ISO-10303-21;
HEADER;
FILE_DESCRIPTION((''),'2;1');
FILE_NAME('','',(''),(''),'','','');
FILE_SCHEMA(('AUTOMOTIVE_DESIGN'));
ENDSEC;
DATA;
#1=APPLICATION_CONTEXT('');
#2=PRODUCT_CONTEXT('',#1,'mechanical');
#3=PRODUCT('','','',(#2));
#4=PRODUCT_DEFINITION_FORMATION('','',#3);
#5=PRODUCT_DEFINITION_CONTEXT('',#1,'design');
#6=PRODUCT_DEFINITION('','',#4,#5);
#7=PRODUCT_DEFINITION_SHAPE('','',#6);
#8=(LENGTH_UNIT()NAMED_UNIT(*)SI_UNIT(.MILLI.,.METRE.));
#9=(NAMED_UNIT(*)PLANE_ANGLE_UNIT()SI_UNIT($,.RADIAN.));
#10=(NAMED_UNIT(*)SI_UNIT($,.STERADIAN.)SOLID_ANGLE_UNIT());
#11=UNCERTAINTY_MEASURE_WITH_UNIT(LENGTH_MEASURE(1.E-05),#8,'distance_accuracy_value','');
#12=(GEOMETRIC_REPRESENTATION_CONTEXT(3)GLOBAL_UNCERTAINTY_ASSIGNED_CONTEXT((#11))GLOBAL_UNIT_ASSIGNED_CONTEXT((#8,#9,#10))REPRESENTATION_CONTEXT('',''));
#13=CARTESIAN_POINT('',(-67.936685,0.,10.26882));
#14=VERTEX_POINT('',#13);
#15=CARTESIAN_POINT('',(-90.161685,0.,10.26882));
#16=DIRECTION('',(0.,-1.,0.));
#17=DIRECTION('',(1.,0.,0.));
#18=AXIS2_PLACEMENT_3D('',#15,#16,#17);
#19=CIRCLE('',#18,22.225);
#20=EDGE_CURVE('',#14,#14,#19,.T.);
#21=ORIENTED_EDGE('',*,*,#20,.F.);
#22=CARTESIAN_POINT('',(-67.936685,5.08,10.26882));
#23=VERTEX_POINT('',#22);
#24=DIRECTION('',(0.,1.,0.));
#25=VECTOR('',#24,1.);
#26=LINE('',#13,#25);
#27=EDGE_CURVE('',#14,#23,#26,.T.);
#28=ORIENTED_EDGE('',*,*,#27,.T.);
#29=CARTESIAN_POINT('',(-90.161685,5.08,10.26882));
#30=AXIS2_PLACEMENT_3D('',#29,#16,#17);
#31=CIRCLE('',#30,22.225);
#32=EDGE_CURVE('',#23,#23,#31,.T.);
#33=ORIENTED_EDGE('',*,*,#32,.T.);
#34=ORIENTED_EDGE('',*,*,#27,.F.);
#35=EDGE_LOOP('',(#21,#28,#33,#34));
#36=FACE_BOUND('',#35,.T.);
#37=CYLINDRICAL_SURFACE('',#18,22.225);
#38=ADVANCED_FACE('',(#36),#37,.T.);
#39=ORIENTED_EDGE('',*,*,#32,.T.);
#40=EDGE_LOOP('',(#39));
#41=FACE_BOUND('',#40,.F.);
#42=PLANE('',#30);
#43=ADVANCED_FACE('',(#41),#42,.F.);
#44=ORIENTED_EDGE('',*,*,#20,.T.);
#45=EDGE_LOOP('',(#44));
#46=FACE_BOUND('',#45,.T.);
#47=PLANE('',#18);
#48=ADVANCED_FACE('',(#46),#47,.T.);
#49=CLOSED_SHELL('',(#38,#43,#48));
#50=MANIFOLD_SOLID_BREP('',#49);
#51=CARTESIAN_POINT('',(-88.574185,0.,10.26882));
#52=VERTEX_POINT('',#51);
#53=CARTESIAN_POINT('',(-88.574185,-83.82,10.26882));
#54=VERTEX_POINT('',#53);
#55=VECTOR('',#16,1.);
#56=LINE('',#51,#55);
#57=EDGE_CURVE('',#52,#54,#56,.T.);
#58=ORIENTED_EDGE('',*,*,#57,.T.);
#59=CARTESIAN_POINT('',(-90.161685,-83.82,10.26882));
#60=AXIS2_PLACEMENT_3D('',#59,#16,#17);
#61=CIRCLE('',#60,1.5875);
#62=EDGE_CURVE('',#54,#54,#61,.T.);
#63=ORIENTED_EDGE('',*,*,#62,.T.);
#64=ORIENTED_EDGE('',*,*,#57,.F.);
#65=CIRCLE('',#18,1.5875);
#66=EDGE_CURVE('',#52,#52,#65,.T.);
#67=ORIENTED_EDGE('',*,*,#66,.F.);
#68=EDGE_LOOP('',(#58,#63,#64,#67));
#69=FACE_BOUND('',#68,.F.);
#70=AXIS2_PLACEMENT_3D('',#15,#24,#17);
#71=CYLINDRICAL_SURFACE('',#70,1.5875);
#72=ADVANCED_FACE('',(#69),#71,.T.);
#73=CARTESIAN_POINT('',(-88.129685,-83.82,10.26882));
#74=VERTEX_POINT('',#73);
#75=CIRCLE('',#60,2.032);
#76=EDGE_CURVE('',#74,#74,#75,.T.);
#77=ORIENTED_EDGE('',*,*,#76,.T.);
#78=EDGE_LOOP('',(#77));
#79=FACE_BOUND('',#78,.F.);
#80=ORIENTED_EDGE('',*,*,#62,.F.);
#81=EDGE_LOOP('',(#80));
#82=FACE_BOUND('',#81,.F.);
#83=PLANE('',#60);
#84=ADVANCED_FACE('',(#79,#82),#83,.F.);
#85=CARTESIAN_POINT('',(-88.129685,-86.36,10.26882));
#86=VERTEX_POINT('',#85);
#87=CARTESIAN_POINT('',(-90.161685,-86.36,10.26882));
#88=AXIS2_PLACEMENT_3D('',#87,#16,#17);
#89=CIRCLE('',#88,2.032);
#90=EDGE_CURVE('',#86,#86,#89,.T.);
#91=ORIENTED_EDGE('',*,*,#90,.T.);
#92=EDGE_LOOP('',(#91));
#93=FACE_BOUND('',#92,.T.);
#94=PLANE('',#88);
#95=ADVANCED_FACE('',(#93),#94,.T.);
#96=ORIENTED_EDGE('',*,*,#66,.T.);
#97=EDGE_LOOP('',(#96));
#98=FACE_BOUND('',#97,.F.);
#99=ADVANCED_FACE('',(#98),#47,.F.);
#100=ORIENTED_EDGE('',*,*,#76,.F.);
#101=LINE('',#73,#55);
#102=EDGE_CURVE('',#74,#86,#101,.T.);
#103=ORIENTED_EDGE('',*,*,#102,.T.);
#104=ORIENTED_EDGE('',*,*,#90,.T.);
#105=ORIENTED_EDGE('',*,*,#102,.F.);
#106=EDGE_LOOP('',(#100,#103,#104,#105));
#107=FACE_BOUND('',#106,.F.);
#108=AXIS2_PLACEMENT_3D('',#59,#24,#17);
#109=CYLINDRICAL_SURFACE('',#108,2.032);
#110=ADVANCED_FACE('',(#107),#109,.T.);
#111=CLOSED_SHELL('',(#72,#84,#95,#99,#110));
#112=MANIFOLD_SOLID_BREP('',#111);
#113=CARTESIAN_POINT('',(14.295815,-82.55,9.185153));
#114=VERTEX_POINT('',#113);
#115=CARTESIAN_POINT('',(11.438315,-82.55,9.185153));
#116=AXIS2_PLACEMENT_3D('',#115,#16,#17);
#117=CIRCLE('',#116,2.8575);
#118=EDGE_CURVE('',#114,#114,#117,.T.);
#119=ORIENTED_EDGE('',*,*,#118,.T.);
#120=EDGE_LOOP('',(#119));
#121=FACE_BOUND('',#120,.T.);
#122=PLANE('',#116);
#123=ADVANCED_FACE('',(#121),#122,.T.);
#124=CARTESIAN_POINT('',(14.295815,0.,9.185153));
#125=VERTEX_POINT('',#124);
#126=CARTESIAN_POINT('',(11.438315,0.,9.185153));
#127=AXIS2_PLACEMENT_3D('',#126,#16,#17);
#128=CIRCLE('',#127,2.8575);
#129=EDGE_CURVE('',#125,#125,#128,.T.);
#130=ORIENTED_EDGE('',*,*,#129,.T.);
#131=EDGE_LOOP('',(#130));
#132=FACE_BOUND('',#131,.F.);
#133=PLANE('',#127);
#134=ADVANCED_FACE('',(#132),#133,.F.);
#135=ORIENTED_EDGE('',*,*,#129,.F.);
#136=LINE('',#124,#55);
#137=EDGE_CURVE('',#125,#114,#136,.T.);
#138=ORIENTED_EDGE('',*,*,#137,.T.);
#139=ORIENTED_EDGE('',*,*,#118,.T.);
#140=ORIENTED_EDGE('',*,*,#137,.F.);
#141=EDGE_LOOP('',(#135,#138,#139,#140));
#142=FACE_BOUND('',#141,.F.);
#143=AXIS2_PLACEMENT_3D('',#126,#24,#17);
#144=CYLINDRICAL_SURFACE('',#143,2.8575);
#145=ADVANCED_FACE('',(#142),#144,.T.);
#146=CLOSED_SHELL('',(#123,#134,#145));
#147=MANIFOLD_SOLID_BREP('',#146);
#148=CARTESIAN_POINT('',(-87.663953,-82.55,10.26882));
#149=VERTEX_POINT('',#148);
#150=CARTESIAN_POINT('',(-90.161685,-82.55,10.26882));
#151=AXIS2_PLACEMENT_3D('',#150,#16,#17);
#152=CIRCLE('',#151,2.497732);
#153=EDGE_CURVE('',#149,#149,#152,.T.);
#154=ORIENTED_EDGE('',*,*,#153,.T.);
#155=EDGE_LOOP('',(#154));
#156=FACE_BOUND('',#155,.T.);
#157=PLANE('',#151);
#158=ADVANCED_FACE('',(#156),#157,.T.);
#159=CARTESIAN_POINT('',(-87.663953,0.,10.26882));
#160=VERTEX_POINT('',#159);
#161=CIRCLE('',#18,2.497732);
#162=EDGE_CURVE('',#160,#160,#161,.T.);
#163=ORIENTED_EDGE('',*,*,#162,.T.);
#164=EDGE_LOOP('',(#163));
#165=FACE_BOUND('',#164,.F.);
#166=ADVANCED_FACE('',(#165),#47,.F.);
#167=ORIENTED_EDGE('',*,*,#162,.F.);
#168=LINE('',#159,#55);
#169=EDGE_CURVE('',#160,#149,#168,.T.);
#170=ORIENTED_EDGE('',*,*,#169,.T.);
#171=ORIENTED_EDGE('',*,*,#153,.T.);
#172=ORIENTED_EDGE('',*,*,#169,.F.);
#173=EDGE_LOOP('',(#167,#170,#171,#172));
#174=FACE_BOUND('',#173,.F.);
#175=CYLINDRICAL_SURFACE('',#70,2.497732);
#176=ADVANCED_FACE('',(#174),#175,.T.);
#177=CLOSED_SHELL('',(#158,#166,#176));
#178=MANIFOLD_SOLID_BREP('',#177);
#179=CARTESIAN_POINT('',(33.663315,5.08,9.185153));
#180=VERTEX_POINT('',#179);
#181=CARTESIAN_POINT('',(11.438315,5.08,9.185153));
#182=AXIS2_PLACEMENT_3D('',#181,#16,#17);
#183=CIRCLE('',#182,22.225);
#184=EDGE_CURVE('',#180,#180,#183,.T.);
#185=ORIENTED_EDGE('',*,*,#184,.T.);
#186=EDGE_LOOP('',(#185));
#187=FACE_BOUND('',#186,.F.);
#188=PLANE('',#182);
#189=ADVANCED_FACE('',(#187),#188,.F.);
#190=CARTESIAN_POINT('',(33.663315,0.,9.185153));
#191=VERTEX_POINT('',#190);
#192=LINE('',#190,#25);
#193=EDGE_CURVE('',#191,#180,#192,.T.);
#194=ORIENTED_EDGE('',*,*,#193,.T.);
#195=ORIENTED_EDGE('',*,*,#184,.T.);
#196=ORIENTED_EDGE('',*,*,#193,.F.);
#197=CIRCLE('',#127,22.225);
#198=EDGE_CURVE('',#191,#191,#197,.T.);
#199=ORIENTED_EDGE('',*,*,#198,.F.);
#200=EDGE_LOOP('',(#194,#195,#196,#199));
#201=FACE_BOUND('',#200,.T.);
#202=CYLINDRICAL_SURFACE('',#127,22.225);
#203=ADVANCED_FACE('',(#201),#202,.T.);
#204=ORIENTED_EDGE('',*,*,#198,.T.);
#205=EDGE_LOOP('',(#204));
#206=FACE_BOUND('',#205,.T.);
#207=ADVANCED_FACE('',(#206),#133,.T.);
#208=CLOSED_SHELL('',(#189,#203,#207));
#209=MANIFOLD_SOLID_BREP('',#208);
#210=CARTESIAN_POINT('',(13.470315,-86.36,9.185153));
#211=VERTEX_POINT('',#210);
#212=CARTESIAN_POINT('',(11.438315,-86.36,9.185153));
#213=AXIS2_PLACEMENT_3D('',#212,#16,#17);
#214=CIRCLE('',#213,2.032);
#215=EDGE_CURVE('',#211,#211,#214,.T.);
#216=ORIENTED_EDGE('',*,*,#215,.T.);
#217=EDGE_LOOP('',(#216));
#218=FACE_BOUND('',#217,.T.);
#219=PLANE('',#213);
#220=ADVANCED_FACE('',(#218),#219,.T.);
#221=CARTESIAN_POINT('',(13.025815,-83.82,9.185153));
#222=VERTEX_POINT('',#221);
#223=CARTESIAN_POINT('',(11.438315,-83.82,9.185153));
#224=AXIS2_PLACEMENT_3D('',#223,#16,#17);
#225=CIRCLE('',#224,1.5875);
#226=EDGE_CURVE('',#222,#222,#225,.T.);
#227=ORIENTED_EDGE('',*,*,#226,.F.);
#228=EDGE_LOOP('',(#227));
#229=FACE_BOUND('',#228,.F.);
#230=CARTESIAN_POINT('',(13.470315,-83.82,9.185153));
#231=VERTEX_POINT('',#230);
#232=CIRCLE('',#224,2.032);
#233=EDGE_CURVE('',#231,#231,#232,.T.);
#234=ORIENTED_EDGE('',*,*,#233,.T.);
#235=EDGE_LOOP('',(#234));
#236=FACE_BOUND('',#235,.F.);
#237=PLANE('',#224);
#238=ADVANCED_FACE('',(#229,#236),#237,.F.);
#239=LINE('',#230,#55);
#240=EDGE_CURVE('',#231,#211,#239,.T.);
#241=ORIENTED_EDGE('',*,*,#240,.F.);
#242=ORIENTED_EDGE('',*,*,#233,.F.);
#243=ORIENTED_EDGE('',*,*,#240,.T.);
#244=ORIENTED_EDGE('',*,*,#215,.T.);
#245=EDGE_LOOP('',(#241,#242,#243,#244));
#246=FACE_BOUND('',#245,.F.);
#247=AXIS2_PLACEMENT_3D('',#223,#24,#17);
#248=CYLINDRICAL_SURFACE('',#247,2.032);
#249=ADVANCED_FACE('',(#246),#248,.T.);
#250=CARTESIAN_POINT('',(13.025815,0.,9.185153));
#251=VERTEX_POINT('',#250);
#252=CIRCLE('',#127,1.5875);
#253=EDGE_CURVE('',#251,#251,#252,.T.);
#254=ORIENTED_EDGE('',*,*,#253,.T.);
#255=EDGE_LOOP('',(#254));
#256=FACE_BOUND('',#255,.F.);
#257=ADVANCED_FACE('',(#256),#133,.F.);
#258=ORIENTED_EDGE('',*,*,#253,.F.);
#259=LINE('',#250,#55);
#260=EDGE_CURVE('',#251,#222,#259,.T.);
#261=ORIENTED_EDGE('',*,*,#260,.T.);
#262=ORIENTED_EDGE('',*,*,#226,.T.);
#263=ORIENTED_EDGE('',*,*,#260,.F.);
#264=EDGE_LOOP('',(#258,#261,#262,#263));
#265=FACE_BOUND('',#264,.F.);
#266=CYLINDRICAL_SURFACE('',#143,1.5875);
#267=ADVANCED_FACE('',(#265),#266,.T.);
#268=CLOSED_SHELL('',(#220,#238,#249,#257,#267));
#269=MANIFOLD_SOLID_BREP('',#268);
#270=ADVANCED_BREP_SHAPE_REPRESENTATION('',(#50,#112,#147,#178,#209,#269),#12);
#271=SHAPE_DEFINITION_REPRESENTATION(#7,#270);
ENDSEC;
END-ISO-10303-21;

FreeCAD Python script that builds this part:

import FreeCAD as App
import Part
import Sketcher

V = App.Vector
Q = App.Units.Quantity

doc = App.newDocument("Part")
body = doc.addObject("PartDesign::Body", "Body")
body.AllowCompound = True

# Sketch on XZ plane
sketch1 = doc.addObject("Sketcher::SketchObject", "Sketch")
body.addObject(sketch1)
sketch1.AttachmentSupport = (doc.XZ_Plane, [""])
sketch1.MapMode = "FlatFace"
sketch1.addGeometry([
    Part.Circle(V(-90.2, 10.3, 0), V(0, 0, 1), 2.5),
    Part.Circle(V(11.4, 9.2, 0), V(0, 0, 1), 2.9),
], False)
sketch1.addConstraint([
    Sketcher.Constraint("Diameter", 1, Q("0.225 in")),
    Sketcher.Constraint("DistanceX", 0, 3, 1, 3, Q("4 in")),
    Sketcher.Constraint("Diameter", 0, Q("4.995464 mm")),
    Sketcher.Constraint("DistanceY", -1, 1, 0, 3, Q("10.26882 mm")),
    Sketcher.Constraint("DistanceX", 0, 3, -1, 1, Q("90.161685 mm")),
    Sketcher.Constraint("DistanceY", -1, 1, 1, 3, Q("9.185153 mm")),
])
pad1 = doc.addObject("PartDesign::Pad", "Pad")
body.addObject(pad1)
pad1.Profile = sketch1
pad1.Length = Q("3.25 in")
body2 = doc.addObject("PartDesign::Body", "Body001")
body2.AllowCompound = True

# Sketch on XZ plane
sketch2 = doc.addObject("Sketcher::SketchObject", "Sketch001")
body2.addObject(sketch2)
sketch2.AttachmentSupport = (doc.getObject("XZ_Plane001"), [""])
sketch2.MapMode = "FlatFace"
sketch2.addGeometry([
    Part.Circle(V(11, 9, 0), V(0, 0, 1), 22),
    Part.Circle(V(-90, 10, 0), V(0, 0, 1), 22),
], False)
sketch2.addConstraint([
    Sketcher.Constraint("Equal", 0, 1),
    Sketcher.Constraint("Diameter", 0, Q("1.75 in")),
    Sketcher.Constraint("DistanceX", 1, 3, 0, 3, Q("4 in")),
    Sketcher.Constraint("DistanceY", -1, 1, 1, 3, Q("10.26882 mm")),
    Sketcher.Constraint("DistanceX", -1, 1, 0, 3, Q("11.438315 mm")),
    Sketcher.Constraint("DistanceY", -1, 1, 0, 3, Q("9.185153 mm")),
])
pad2 = doc.addObject("PartDesign::Pad", "Pad001")
body2.addObject(pad2)
pad2.Profile = sketch2
pad2.Length = Q("0.2 in")
pad2.Reversed = True
body3 = doc.addObject("PartDesign::Body", "Body002")
body3.AllowCompound = True

# Sketch on XZ plane
sketch3 = doc.addObject("Sketcher::SketchObject", "Sketch002")
body3.addObject(sketch3)
sketch3.AttachmentSupport = (doc.getObject("XZ_Plane002"), [""])
sketch3.MapMode = "FlatFace"
sketch3.addGeometry([
    Part.Circle(V(-90.2, 10.3, 0), V(0, 0, 1), 1.6),
    Part.Circle(V(11.4, 9.2, 0), V(0, 0, 1), 1.6),
], False)
sketch3.addConstraint([
    Sketcher.Constraint("Equal", 0, 1),
    Sketcher.Constraint("Diameter", 0, Q("0.125 in")),
    Sketcher.Constraint("DistanceX", 0, 3, 1, 3, Q("4 in")),
    Sketcher.Constraint("DistanceY", -1, 1, 0, 3, Q("10.26882 mm")),
    Sketcher.Constraint("DistanceX", 0, 3, -1, 1, Q("90.161685 mm")),
    Sketcher.Constraint("DistanceY", -1, 1, 1, 3, Q("9.185153 mm")),
])
pad3 = doc.addObject("PartDesign::Pad", "Pad002")
body3.addObject(pad3)
pad3.Profile = sketch3
pad3.Length = Q("3.3 in")

# Sketch on XZ plane
sketch4 = doc.addObject("Sketcher::SketchObject", "Sketch003")
body3.addObject(sketch4)
sketch4.AttachmentSupport = (doc.getObject("XZ_Plane002"), [""])
sketch4.MapMode = "FlatFace"
sketch4.AttachmentOffset = App.Placement(V(0, 0, 3.3 * 25.4), App.Rotation())
sketch4.addGeometry(Part.Circle(V(-90.2, 10.3, 0), V(0, 0, 1), 2), False)
sketch4.addConstraint([
    Sketcher.Constraint("Diameter", 0, Q("0.16 in")),
    Sketcher.Constraint("DistanceY", -1, 1, 0, 3, Q("10.26882 mm")),
    Sketcher.Constraint("DistanceX", 0, 3, -1, 1, Q("90.161685 mm")),
])
pad4 = doc.addObject("PartDesign::Pad", "Pad003")
body3.addObject(pad4)
pad4.Profile = sketch4
pad4.Length = Q("0.1 in")

# Sketch on XZ plane
sketch5 = doc.addObject("Sketcher::SketchObject", "Sketch004")
body3.addObject(sketch5)
sketch5.AttachmentSupport = (doc.getObject("XZ_Plane002"), [""])
sketch5.MapMode = "FlatFace"
sketch5.AttachmentOffset = App.Placement(V(0, 0, 3.3 * 25.4), App.Rotation())
sketch5.addGeometry(Part.Circle(V(11.4, 9.2, 0), V(0, 0, 1), 2), False)
sketch5.addConstraint([
    Sketcher.Constraint("Diameter", 0, Q("0.16 in")),
    Sketcher.Constraint("DistanceX", -1, 1, 0, 3, Q("11.438315 mm")),
    Sketcher.Constraint("DistanceY", -1, 1, 0, 3, Q("9.185153 mm")),
])
pad5 = doc.addObject("PartDesign::Pad", "Pad004")
body3.addObject(pad5)
pad5.Profile = sketch5
pad5.Length = Q("0.1 in")

doc.recompute()
